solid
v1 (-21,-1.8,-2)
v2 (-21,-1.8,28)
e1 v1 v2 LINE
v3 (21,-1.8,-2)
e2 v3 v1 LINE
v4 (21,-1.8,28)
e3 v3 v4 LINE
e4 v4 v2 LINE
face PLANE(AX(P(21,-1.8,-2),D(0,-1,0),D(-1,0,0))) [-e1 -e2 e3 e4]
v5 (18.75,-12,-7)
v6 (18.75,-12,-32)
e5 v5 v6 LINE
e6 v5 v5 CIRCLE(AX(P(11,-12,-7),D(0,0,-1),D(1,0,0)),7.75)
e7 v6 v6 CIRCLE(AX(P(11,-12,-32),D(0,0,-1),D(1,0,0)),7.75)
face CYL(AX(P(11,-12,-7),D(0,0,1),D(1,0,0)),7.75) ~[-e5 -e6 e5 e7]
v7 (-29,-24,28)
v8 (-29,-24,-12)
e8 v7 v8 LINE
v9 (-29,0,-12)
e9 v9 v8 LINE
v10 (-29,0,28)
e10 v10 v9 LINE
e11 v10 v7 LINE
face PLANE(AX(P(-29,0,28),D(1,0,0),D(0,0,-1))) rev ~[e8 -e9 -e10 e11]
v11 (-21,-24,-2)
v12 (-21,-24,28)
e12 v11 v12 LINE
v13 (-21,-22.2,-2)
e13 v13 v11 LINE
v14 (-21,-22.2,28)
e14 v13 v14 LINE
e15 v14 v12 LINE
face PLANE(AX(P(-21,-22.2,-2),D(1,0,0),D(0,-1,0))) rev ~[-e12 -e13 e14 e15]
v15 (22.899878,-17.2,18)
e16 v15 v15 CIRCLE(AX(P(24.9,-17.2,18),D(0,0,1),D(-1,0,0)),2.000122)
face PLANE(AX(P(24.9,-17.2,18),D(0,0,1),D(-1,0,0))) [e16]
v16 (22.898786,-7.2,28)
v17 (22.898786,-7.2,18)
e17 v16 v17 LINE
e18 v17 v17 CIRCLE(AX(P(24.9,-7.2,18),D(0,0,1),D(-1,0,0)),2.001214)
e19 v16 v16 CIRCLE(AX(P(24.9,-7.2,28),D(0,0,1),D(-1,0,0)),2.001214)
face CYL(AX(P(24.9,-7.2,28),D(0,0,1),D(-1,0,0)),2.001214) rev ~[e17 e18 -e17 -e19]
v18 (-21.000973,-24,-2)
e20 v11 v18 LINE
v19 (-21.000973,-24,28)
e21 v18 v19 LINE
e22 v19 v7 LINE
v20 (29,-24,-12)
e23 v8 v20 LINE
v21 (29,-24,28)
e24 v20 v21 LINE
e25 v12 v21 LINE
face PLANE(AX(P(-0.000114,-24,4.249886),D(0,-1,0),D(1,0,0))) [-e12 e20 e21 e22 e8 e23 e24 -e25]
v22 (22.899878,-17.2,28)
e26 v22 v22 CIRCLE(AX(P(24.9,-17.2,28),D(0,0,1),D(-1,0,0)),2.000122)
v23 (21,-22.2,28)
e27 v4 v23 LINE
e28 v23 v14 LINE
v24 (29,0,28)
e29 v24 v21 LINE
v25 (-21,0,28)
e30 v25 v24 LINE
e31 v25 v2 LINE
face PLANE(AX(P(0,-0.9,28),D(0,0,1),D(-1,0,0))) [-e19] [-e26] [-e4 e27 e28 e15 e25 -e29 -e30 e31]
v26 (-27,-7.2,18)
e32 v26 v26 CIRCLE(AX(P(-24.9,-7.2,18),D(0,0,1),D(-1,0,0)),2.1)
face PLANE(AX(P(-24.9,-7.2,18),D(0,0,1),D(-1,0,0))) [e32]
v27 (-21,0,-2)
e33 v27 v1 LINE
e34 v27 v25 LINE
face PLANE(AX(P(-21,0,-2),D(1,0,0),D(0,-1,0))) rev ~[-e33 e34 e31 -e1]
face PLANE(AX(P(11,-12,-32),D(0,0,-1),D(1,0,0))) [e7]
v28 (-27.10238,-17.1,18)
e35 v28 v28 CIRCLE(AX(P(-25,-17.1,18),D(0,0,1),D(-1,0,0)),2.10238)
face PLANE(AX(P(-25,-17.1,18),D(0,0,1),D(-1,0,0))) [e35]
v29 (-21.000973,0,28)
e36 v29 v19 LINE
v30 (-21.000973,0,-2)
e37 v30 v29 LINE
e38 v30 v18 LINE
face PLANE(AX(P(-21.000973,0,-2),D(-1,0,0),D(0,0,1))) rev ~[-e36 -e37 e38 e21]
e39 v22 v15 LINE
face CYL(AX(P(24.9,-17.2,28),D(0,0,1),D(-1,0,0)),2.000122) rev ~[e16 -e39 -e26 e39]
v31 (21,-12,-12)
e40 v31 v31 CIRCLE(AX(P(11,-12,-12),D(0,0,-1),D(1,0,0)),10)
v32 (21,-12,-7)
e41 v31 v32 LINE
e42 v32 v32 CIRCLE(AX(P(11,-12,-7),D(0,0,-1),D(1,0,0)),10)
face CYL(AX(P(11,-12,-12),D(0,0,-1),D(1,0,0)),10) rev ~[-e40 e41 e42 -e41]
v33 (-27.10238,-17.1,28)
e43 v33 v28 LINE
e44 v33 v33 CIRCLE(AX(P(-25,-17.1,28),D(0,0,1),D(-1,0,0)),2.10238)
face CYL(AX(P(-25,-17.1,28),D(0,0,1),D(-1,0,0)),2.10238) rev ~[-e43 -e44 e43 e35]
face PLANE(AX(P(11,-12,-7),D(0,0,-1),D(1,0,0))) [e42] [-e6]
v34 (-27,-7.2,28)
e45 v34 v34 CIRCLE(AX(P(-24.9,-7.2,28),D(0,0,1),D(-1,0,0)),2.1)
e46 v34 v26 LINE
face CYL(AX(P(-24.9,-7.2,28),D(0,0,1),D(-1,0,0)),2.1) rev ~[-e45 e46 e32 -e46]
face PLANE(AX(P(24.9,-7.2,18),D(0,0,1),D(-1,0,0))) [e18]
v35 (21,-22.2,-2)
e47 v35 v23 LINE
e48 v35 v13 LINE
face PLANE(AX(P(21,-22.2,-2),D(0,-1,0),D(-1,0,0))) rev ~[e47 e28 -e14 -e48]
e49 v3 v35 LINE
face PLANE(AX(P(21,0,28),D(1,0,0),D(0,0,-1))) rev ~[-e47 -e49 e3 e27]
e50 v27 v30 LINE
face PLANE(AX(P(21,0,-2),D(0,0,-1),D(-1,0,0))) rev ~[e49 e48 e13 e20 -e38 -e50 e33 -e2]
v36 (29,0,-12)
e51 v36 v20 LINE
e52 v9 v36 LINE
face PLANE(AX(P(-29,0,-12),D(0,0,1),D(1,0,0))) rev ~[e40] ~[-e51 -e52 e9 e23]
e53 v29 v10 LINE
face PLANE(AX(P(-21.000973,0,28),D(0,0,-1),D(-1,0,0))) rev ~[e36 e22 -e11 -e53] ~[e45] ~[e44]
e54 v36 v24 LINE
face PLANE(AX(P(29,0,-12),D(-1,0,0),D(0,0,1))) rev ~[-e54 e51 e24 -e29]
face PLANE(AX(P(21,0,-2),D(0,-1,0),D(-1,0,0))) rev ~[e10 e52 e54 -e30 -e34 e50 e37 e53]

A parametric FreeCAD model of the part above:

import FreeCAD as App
import Part
import Sketcher

V = App.Vector
Q = App.Units.Quantity

doc = App.newDocument("Part")
params = doc.addObject("Spreadsheet::Sheet", "Params")
for row, (alias, value) in enumerate([
    ("sketch1_width", "58 mm"),
    ("sketch1_width2", "8 mm"),
    ("sketch1_height", "40 mm"),
    ("sketch1_height2", "30 mm"),
    ("pad1_length", "24 mm"),
    ("sketch2_width", "42 mm"),
    ("sketch2_height", "1.8 mm"),
    ("pad2_length", "30 mm"),
    ("sketch3_diameter", "20 mm"),
    ("pocket1_length", "5 mm"),
    ("sketch4_diameter", "15.5 mm"),
    ("pad3_length", "25 mm"),
    ("sketch5_diameter", "4.2 mm"),
    ("pocket2_length", "10 mm"),
], start=1):
    params.set(f"A{row}", alias)
    params.set(f"B{row}", "=" + value)
    params.setAlias(f"B{row}", alias)

body = doc.addObject("PartDesign::Body", "Body")

# Sketch on XZ plane
sketch1 = doc.addObject("Sketcher::SketchObject", "Sketch")
body.addObject(sketch1)
sketch1.AttachmentSupport = (doc.XZ_Plane, [""])
sketch1.MapMode = "FlatFace"
sketch1.addGeometry([
    Part.LineSegment(V(-21, 28, 0), V(-29, 28, 0)),  # 0
    Part.LineSegment(V(-29, 28, 0), V(-29, -12, 0)),  # 1
    Part.LineSegment(V(-29, -12, 0), V(29, -12, 0)),  # 2
    Part.LineSegment(V(29, -12, 0), V(29, 28, 0)),  # 3
    Part.LineSegment(V(29, 28, 0), V(21, 28, 0)),  # 4
    Part.LineSegment(V(21, 28, 0), V(21, -2, 0)),  # 5
    Part.LineSegment(V(21, -2, 0), V(-21, -2, 0)),  # 6
    Part.LineSegment(V(-21, -2, 0), V(-21, 28, 0)),  # 7
], False)
sketch1.addConstraint([
    Sketcher.Constraint("Coincident", 0, 2, 1, 1),
    Sketcher.Constraint("Coincident", 1, 2, 2, 1),
    Sketcher.Constraint("Coincident", 2, 2, 3, 1),
    Sketcher.Constraint("Coincident", 3, 2, 4, 1),
    Sketcher.Constraint("Coincident", 4, 2, 5, 1),
    Sketcher.Constraint("Coincident", 5, 2, 6, 1),
    Sketcher.Constraint("Coincident", 6, 2, 7, 1),
    Sketcher.Constraint("Coincident", 7, 2, 0, 1),
    Sketcher.Constraint("Horizontal", 0),
    Sketcher.Constraint("Vertical", 1),
    Sketcher.Constraint("Horizontal", 2),
    Sketcher.Constraint("Vertical", 3),
    Sketcher.Constraint("Horizontal", 4),
    Sketcher.Constraint("Vertical", 5),
    Sketcher.Constraint("Horizontal", 6),
    Sketcher.Constraint("Vertical", 7),
    Sketcher.Constraint("Symmetric", 0, 2, 3, 2, -2),
    Sketcher.Constraint("DistanceX", 2, 1, 2, 2, Q("58 mm")),
    Sketcher.Constraint("DistanceX", 4, 2, 4, 1, Q("8 mm")),
    Sketcher.Constraint("DistanceY", 1, 2, 1, 1, Q("40 mm")),
    Sketcher.Constraint("DistanceY", 5, 2, 5, 1, Q("30 mm")),
    Sketcher.Constraint("DistanceY", -1, 1, 0, 2, Q("28 mm")),
    Sketcher.Constraint("DistanceX", 0, 2, 0, 1, Q("7.999027 mm")),
])
sketch1.setExpression("Constraints[17]", "Params.sketch1_width")
sketch1.setExpression("Constraints[18]", "Params.sketch1_width2")
sketch1.setExpression("Constraints[19]", "Params.sketch1_height")
sketch1.setExpression("Constraints[20]", "Params.sketch1_height2")
pad1 = doc.addObject("PartDesign::Pad", "Pad")
body.addObject(pad1)
pad1.Profile = sketch1
pad1.setExpression("Length", "Params.pad1_length")

# Sketch on XY plane
sketch2 = doc.addObject("Sketcher::SketchObject", "Sketch001")
body.addObject(sketch2)
sketch2.AttachmentSupport = (doc.XY_Plane, [""])
sketch2.MapMode = "FlatFace"
sketch2.AttachmentOffset = App.Placement(V(0, 0, -2), App.Rotation())
sketch2.addGeometry([
    Part.LineSegment(V(21, -1.8, 0), V(21, 0, 0)),  # 0
    Part.LineSegment(V(21, 0, 0), V(-21, 0, 0)),  # 1
    Part.LineSegment(V(-21, 0, 0), V(-21, -1.8, 0)),  # 2
    Part.LineSegment(V(-21, -1.8, 0), V(21, -1.8, 0)),  # 3
    Part.LineSegment(V(21, -24, 0), V(21, -22.2, 0)),  # 4
    Part.LineSegment(V(21, -22.2, 0), V(-21, -22.2, 0)),  # 5
    Part.LineSegment(V(-21, -22.2, 0), V(-21, -24, 0)),  # 6
    Part.LineSegment(V(-21, -24, 0), V(21, -24, 0)),  # 7
], False)
sketch2.addConstraint([
    Sketcher.Constraint("Coincident", 0, 2, 1, 1),
    Sketcher.Constraint("Coincident", 1, 2, 2, 1),
    Sketcher.Constraint("Coincident", 2, 2, 3, 1),
    Sketcher.Constraint("Coincident", 3, 2, 0, 1),
    Sketcher.Constraint("Coincident", 4, 2, 5, 1),
    Sketcher.Constraint("Coincident", 5, 2, 6, 1),
    Sketcher.Constraint("Coincident", 6, 2, 7, 1),
    Sketcher.Constraint("Coincident", 7, 2, 4, 1),
    Sketcher.Constraint("Vertical", 0),
    Sketcher.Constraint("Horizontal", 1),
    Sketcher.Constraint("Vertical", 2),
    Sketcher.Constraint("Horizontal", 3),
    Sketcher.Constraint("Vertical", 4),
    Sketcher.Constraint("Horizontal", 5),
    Sketcher.Constraint("Vertical", 6),
    Sketcher.Constraint("Horizontal", 7),
    Sketcher.Constraint("Symmetric", 0, 2, 1, 2, -1, 1),
    Sketcher.Constraint("Vertical", 3, 2, 4, 2),
    Sketcher.Constraint("Vertical", 2, 2, 5, 2),
    Sketcher.Constraint("Equal", 2, 4),
    Sketcher.Constraint("DistanceX", 1, 2, 1, 1, Q("42 mm")),
    Sketcher.Constraint("DistanceY", 0, 1, 0, 2, Q("1.8 mm")),
    Sketcher.Constraint("DistanceY", 6, 2, -1, 1, Q("24 mm")),
])
sketch2.setExpression("Constraints[20]", "Params.sketch2_width")
sketch2.setExpression("Constraints[21]", "Params.sketch2_height")
pad2 = doc.addObject("PartDesign::Pad", "Pad001")
body.addObject(pad2)
pad2.Profile = sketch2
pad2.setExpression("Length", "Params.pad2_length")

# Sketch on XY plane
sketch3 = doc.addObject("Sketcher::SketchObject", "Sketch002")
body.addObject(sketch3)
sketch3.AttachmentSupport = (doc.XY_Plane, [""])
sketch3.MapMode = "FlatFace"
sketch3.AttachmentOffset = App.Placement(V(0, 0, -12), App.Rotation())
sketch3.addGeometry(Part.Circle(V(11, -12, 0), V(0, 0, 1), 10), False)
sketch3.addConstraint([
    Sketcher.Constraint("Diameter", 0, Q("20 mm")),
    Sketcher.Constraint("DistanceX", -1, 1, 0, 3, Q("11 mm")),
    Sketcher.Constraint("DistanceY", 0, 3, -1, 1, Q("12 mm")),
])
sketch3.setExpression("Constraints[0]", "Params.sketch3_diameter")
pocket1 = doc.addObject("PartDesign::Pocket", "Pocket")
body.addObject(pocket1)
pocket1.Profile = sketch3
pocket1.setExpression("Length", "Params.pocket1_length")
pocket1.Reversed = True

# Sketch on XY plane
sketch4 = doc.addObject("Sketcher::SketchObject", "Sketch003")
body.addObject(sketch4)
sketch4.AttachmentSupport = (doc.XY_Plane, [""])
sketch4.MapMode = "FlatFace"
sketch4.AttachmentOffset = App.Placement(V(0, 0, -7), App.Rotation())
sketch4.addGeometry(Part.Circle(V(11, -12, 0), V(0, 0, 1), 8), False)
sketch4.addConstraint([
    Sketcher.Constraint("Diameter", 0, Q("15.5 mm")),
    Sketcher.Constraint("DistanceX", -1, 1, 0, 3, Q("11 mm")),
    Sketcher.Constraint("DistanceY", 0, 3, -1, 1, Q("12 mm")),
])
sketch4.setExpression("Constraints[0]", "Params.sketch4_diameter")
pad3 = doc.addObject("PartDesign::Pad", "Pad002")
body.addObject(pad3)
pad3.Profile = sketch4
pad3.setExpression("Length", "Params.pad3_length")
pad3.Reversed = True

# Sketch on XY plane
sketch5 = doc.addObject("Sketcher::SketchObject", "Sketch004")
body.addObject(sketch5)
sketch5.AttachmentSupport = (doc.XY_Plane, [""])
sketch5.MapMode = "FlatFace"
sketch5.AttachmentOffset = App.Placement(V(0, 0, 28), App.Rotation())
sketch5.addGeometry([
    Part.Circle(V(24.9, -17.2, 0), V(0, 0, 1), 2),
    Part.Circle(V(24.9, -7.2, 0), V(0, 0, 1), 2),
    Part.Circle(V(-24.9, -7.2, 0), V(0, 0, 1), 2.1),
    Part.Circle(V(-25, -17.1, 0), V(0, 0, 1), 2.1),
], False)
sketch5.addConstraint([
    Sketcher.Constraint("Symmetric", 1, 3, 2, 3, -2),
    Sketcher.Constraint("Vertical", 0, 3, 1, 3),
    Sketcher.Constraint("Diameter", 2, Q("4.2 mm")),
    Sketcher.Constraint("DistanceX", 3, 3, -1, 1, Q("25 mm")),
    Sketcher.Constraint("DistanceY", 0, 3, 1, 3, Q("10 mm")),
    Sketcher.Constraint("DistanceX", -1, 1, 0, 3, Q("24.9 mm")),
    Sketcher.Constraint("DistanceY", 0, 3, -1, 1, Q("17.2 mm")),
    Sketcher.Constraint("DistanceY", 3, 3, -1, 1, Q("17.1 mm")),
    Sketcher.Constraint("Diameter", 3, Q("4.20476 mm")),
    Sketcher.Constraint("Diameter", 0, Q("4.000244 mm")),
    Sketcher.Constraint("Diameter", 1, Q("4.002428 mm")),
])
sketch5.setExpression("Constraints[2]", "Params.sketch5_diameter")
pocket2 = doc.addObject("PartDesign::Pocket", "Pocket001")
body.addObject(pocket2)
pocket2.Profile = sketch5
pocket2.setExpression("Length", "Params.pocket2_length")

doc.recompute()
